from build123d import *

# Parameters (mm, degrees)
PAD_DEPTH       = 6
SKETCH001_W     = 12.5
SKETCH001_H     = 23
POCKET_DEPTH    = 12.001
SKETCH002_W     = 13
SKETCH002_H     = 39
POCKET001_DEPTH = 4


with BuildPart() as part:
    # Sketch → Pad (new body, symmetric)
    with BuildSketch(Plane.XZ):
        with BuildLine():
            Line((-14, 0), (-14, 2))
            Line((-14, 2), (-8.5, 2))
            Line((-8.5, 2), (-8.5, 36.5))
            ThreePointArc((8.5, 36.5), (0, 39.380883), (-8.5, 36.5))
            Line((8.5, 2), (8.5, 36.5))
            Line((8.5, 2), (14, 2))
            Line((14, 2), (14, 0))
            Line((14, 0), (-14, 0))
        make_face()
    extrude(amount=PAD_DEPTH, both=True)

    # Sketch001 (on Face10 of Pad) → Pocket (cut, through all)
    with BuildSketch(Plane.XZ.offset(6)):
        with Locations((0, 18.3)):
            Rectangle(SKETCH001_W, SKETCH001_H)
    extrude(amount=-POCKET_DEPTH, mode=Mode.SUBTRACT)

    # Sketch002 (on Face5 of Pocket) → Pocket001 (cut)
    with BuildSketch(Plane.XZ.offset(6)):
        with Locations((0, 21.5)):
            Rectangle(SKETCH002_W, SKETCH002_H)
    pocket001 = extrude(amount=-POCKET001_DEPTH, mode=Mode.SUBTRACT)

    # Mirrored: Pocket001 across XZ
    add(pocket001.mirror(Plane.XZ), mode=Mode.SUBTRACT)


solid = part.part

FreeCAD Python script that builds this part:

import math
import FreeCAD as App
import Part
import Sketcher
Q = App.Units.Quantity


def add_polygon(sketch, points):
    """Adds a closed chain of lines whose ends are joined by coincident constraints."""
    first, n = sketch.GeometryCount, len(points)
    for a, b in zip(points, points[1:] + points[:1]):
        sketch.addGeometry(Part.LineSegment(App.Vector(*a, 0), App.Vector(*b, 0)), False)
    for i in range(n):
        sketch.addConstraint(Sketcher.Constraint("Coincident", first + i, 2, first + (i + 1) % n, 1))

doc = App.newDocument("Part")
params = doc.addObject("Spreadsheet::Sheet", "Params")
for row, (alias, value) in enumerate([
    ("sketch1_width", "28 mm"),
    ("sketch1_height", "2 mm"),
    ("sketch1_radius", "13.98 mm"),
    ("sketch1_width2", "5.5 mm"),
    ("sketch1_height2", "34.5 mm"),
    ("pad1_length", "12 mm"),
    ("sketch2_height", "23 mm"),
    ("sketch2_width", "12.5 mm"),
    ("sketch3_width", "13 mm"),
    ("sketch3_height", "39 mm"),
    ("pocket2_length", "4 mm"),
], start=1):
    params.set(f"A{row}", alias)
    params.set(f"B{row}", "=" + value)
    params.setAlias(f"B{row}", alias)

body = doc.addObject("PartDesign::Body", "Body")

# Sketch on XZ plane
sketch1 = doc.addObject("Sketcher::SketchObject", "Sketch")
body.addObject(sketch1)
sketch1.AttachmentSupport = (doc.XZ_Plane, [""])
sketch1.MapMode = "FlatFace"
sketch1.addGeometry(Part.LineSegment(App.Vector(-14, 2, 0), App.Vector(-14, 0, 0)), False)
sketch1.addGeometry(Part.LineSegment(App.Vector(-14, 0, 0), App.Vector(14, 0, 0)), False)
sketch1.addGeometry(Part.LineSegment(App.Vector(14, 0, 0), App.Vector(14, 2, 0)), False)
sketch1.addGeometry(Part.LineSegment(App.Vector(14, 2, 0), App.Vector(8.5, 2, 0)), False)
sketch1.addGeometry(Part.LineSegment(App.Vector(8.5, 2, 0), App.Vector(8.5, 36.5, 0)), False)
sketch1.addGeometry(Part.ArcOfCircle(Part.Circle(App.Vector(0, 25.400883, 0), App.Vector(0, 0, 1), 13.98), math.radians(52.554143), math.radians(127.445857)), False)
sketch1.addGeometry(Part.LineSegment(App.Vector(-8.5, 36.5, 0), App.Vector(-8.5, 2, 0)), False)
sketch1.addGeometry(Part.LineSegment(App.Vector(-8.5, 2, 0), App.Vector(-14, 2, 0)), False)
sketch1.addConstraint(Sketcher.Constraint("Coincident", 0, 2, 1, 1))
sketch1.addConstraint(Sketcher.Constraint("Coincident", 1, 2, 2, 1))
sketch1.addConstraint(Sketcher.Constraint("Coincident", 2, 2, 3, 1))
sketch1.addConstraint(Sketcher.Constraint("Coincident", 3, 2, 4, 1))
sketch1.addConstraint(Sketcher.Constraint("Coincident", 4, 2, 5, 1))
sketch1.addConstraint(Sketcher.Constraint("Coincident", 5, 2, 6, 1))
sketch1.addConstraint(Sketcher.Constraint("Coincident", 6, 2, 7, 1))
sketch1.addConstraint(Sketcher.Constraint("Coincident", 7, 2, 0, 1))
sketch1.addConstraint(Sketcher.Constraint("Vertical", 0))
sketch1.addConstraint(Sketcher.Constraint("Horizontal", 1))
sketch1.addConstraint(Sketcher.Constraint("Vertical", 2))
sketch1.addConstraint(Sketcher.Constraint("Horizontal", 3))
sketch1.addConstraint(Sketcher.Constraint("Vertical", 4))
sketch1.addConstraint(Sketcher.Constraint("Vertical", 6))
sketch1.addConstraint(Sketcher.Constraint("Horizontal", 7))
sketch1.addConstraint(Sketcher.Constraint("Symmetric", 0, 2, 1, 2, -1, 1))
sketch1.addConstraint(Sketcher.Constraint("Symmetric", 4, 2, 5, 2, -2))
sketch1.addConstraint(Sketcher.Constraint("Horizontal", 3, 2, 6, 2))
sketch1.addConstraint(Sketcher.Constraint("DistanceX", 1, 1, 1, 2, Q("28 mm")))
sketch1.addConstraint(Sketcher.Constraint("DistanceY", 0, 2, 0, 1, Q("2 mm")))
sketch1.addConstraint(Sketcher.Constraint("Radius", 5, Q("13.98 mm")))
sketch1.addConstraint(Sketcher.Constraint("DistanceX", 3, 2, 3, 1, Q("5.5 mm")))
sketch1.addConstraint(Sketcher.Constraint("DistanceY", 4, 1, 4, 2, Q("34.5 mm")))
sketch1.setExpression("Constraints[18]", "Params.sketch1_width")
sketch1.setExpression("Constraints[19]", "Params.sketch1_height")
sketch1.setExpression("Constraints[20]", "Params.sketch1_radius")
sketch1.setExpression("Constraints[21]", "Params.sketch1_width2")
sketch1.setExpression("Constraints[22]", "Params.sketch1_height2")
pad1 = doc.addObject("PartDesign::Pad", "Pad")
body.addObject(pad1)
pad1.Profile = sketch1
pad1.setExpression("Length", "Params.pad1_length")
pad1.Midplane = True

# Sketch on XZ plane
sketch2 = doc.addObject("Sketcher::SketchObject", "Sketch001")
body.addObject(sketch2)
sketch2.AttachmentSupport = (doc.XZ_Plane, [""])
sketch2.MapMode = "FlatFace"
sketch2.AttachmentOffset = App.Placement(App.Vector(0, 0, 6), App.Rotation())
add_polygon(sketch2, [(-6.25, 29.8), (-6.25, 6.8), (6.25, 6.8), (6.25, 29.8)])  # lines 0-3
sketch2.addConstraint(Sketcher.Constraint("Vertical", 0))
sketch2.addConstraint(Sketcher.Constraint("Horizontal", 1))
sketch2.addConstraint(Sketcher.Constraint("Vertical", 2))
sketch2.addConstraint(Sketcher.Constraint("Horizontal", 3))
sketch2.addConstraint(Sketcher.Constraint("DistanceY", 0, 2, 0, 1, Q("23 mm")))
sketch2.addConstraint(Sketcher.Constraint("DistanceX", 1, 1, 1, 2, Q("12.5 mm")))
sketch2.addConstraint(Sketcher.Constraint("DistanceY", -1, 1, 0, 2, Q("6.8 mm")))
sketch2.addConstraint(Sketcher.Constraint("DistanceX", 0, 2, -1, 1, Q("6.25 mm")))
sketch2.setExpression("Constraints[8]", "Params.sketch2_height")
sketch2.setExpression("Constraints[9]", "Params.sketch2_width")
pocket1 = doc.addObject("PartDesign::Pocket", "Pocket")
body.addObject(pocket1)
pocket1.Profile = sketch2
pocket1.Type = "ThroughAll"

# Sketch on XZ plane
sketch3 = doc.addObject("Sketcher::SketchObject", "Sketch002")
body.addObject(sketch3)
sketch3.AttachmentSupport = (doc.XZ_Plane, [""])
sketch3.MapMode = "FlatFace"
sketch3.AttachmentOffset = App.Placement(App.Vector(0, 0, 6), App.Rotation())
add_polygon(sketch3, [(-6.5, 41), (-6.5, 2), (6.5, 2), (6.5, 41)])  # lines 0-3
sketch3.addConstraint(Sketcher.Constraint("Vertical", 0))
sketch3.addConstraint(Sketcher.Constraint("Horizontal", 1))
sketch3.addConstraint(Sketcher.Constraint("Vertical", 2))
sketch3.addConstraint(Sketcher.Constraint("Horizontal", 3))
sketch3.addConstraint(Sketcher.Constraint("DistanceX", 1, 1, 1, 2, Q("13 mm")))
sketch3.addConstraint(Sketcher.Constraint("DistanceY", 0, 2, 0, 1, Q("39 mm")))
sketch3.addConstraint(Sketcher.Constraint("DistanceY", -1, 1, 0, 2, Q("2 mm")))
sketch3.addConstraint(Sketcher.Constraint("DistanceX", 0, 2, -1, 1, Q("6.5 mm")))
sketch3.setExpression("Constraints[8]", "Params.sketch3_width")
sketch3.setExpression("Constraints[9]", "Params.sketch3_height")
pocket2 = doc.addObject("PartDesign::Pocket", "Pocket001")
body.addObject(pocket2)
pocket2.Profile = sketch3
pocket2.setExpression("Length", "Params.pocket2_length")
doc.recompute()

mirrored = doc.addObject("PartDesign::Mirrored", "Mirrored")
body.addObject(mirrored)
mirrored.Originals = [pocket2]
mirrored.MirrorPlane = (doc.XZ_Plane, [""])
body.Tip = mirrored

doc.recompute()
